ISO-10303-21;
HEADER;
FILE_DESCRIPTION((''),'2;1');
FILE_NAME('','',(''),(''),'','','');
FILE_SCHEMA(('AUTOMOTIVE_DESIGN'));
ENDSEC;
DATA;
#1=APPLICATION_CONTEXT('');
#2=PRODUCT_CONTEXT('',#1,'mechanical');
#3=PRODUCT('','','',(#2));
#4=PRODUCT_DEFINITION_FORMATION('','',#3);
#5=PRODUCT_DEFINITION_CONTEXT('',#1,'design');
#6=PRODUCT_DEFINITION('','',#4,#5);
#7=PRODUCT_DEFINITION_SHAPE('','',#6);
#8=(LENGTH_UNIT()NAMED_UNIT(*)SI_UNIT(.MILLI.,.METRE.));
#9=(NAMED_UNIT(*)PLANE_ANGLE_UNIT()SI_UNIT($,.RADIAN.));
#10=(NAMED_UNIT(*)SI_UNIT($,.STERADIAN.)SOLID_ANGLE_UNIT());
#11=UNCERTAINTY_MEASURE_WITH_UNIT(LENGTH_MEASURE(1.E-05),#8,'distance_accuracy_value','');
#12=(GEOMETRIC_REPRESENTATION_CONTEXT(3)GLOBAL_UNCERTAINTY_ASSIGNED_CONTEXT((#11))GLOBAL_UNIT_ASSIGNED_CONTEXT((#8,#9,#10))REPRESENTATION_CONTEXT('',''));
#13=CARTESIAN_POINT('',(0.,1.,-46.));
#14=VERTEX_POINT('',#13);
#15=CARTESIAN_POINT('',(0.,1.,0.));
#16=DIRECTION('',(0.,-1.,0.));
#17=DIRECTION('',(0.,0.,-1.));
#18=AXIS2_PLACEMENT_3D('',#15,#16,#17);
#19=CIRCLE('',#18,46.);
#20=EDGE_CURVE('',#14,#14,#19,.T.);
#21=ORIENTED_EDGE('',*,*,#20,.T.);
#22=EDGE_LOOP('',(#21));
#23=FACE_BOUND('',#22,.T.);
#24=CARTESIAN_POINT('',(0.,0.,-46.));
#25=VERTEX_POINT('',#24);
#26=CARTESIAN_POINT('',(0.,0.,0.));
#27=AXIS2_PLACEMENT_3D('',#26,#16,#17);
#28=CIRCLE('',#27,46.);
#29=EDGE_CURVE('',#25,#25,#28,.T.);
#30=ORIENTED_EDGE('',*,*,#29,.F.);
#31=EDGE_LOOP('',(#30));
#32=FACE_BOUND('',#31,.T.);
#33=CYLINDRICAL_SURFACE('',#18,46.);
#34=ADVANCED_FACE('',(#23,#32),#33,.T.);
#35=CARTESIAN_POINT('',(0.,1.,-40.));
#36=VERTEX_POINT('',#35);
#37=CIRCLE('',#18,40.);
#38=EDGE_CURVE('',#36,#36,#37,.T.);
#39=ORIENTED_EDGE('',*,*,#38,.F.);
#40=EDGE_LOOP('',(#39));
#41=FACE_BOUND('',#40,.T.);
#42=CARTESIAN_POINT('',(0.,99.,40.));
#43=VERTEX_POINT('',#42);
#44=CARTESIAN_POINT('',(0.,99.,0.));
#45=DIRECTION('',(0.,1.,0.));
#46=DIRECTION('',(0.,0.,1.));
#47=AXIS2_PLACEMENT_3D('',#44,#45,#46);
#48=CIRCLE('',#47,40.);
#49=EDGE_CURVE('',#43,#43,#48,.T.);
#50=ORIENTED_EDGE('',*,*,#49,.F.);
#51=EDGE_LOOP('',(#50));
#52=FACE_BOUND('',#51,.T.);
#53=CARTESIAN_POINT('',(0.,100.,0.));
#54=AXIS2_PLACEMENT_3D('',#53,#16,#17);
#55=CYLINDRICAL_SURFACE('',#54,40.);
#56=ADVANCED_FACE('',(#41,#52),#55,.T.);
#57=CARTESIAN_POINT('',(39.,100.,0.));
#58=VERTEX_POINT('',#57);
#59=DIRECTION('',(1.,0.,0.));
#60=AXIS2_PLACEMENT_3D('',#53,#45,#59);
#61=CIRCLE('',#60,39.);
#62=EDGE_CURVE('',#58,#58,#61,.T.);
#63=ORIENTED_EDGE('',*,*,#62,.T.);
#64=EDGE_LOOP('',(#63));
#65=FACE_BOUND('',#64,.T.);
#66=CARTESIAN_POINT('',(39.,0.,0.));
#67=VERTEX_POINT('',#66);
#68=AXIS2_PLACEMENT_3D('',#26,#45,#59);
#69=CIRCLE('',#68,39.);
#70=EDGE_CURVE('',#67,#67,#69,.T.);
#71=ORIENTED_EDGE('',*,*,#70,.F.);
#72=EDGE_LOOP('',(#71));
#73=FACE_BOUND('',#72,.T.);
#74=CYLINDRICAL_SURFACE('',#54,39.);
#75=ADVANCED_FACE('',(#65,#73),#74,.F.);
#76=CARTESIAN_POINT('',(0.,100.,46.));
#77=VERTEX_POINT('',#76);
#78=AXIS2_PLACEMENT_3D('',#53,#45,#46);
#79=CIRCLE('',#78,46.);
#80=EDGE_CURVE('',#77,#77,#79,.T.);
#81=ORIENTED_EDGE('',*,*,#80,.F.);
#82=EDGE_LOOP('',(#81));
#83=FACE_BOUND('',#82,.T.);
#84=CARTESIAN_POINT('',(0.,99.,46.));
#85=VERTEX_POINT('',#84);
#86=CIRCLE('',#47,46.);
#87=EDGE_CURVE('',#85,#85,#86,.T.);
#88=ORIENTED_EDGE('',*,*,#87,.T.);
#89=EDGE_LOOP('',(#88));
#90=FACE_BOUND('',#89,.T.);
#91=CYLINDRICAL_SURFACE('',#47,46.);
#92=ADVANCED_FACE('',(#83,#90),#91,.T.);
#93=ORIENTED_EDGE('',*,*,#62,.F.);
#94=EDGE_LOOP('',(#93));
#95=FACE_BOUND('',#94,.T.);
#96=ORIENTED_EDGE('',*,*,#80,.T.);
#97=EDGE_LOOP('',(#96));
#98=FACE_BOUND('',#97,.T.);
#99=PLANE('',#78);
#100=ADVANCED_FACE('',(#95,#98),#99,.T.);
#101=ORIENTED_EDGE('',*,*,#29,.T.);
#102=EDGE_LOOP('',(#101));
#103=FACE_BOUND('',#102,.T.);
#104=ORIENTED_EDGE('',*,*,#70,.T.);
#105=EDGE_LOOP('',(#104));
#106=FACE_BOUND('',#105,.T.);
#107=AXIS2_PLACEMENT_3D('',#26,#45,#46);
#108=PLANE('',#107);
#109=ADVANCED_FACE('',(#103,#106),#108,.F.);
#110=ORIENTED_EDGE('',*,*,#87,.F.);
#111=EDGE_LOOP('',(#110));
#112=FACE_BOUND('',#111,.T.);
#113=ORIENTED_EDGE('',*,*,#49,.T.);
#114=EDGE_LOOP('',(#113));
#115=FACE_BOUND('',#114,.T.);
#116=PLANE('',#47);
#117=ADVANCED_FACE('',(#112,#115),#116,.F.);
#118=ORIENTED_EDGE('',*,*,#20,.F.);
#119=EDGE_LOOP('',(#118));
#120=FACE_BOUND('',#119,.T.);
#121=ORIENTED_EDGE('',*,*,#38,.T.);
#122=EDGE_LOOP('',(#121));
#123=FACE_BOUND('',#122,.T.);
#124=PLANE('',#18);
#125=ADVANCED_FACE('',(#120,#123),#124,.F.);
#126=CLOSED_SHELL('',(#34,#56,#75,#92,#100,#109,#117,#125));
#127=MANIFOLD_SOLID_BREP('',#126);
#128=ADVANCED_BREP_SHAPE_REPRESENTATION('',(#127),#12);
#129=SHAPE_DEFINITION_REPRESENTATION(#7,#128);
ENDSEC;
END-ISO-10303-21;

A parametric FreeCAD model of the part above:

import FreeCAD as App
import Part
import Sketcher
Q = App.Units.Quantity

doc = App.newDocument("Part")
body = doc.addObject("PartDesign::Body", "Body")

# Sketch on XZ plane
sketch1 = body.newObject("Sketcher::SketchObject", "Sketch")
sketch1.AttachmentSupport = (doc.getObject("XZ_Plane"), [""])
sketch1.MapMode = "FlatFace"
sketch1.addGeometry([
    Part.Circle(App.Vector(0, 0, 0), App.Vector(0, 0, 1), 40),
    Part.Circle(App.Vector(0, 0, 0), App.Vector(0, 0, 1), 39),
], False)
sketch1.addConstraint([
    Sketcher.Constraint("Coincident", 0, 3, -1, 1),
    Sketcher.Constraint("Coincident", 1, 3, -1, 1),
    Sketcher.Constraint("Diameter", 0, Q("80 mm")),
    Sketcher.Constraint("Diameter", 1, Q("78 mm")),
])
pad1 = body.newObject("PartDesign::Pad", "Pad")
pad1.Profile = sketch1
pad1.Length = 100
pad1.Reversed = True

# Sketch on XZ plane
sketch2 = body.newObject("Sketcher::SketchObject", "Sketch001")
sketch2.AttachmentSupport = (doc.getObject("XZ_Plane"), [""])
sketch2.MapMode = "FlatFace"
sketch2.AttachmentOffset = App.Placement(App.Vector(0, 0, -99), App.Rotation())
sketch2.addGeometry([
    Part.Circle(App.Vector(0, 0, 0), App.Vector(0, 0, 1), 46),
    Part.Circle(App.Vector(0, 0, 0), App.Vector(0, 0, 1), 40),
], False)
sketch2.addConstraint([
    Sketcher.Constraint("Coincident", 0, 3, -1, 1),
    Sketcher.Constraint("Coincident", 1, 3, -1, 1),
    Sketcher.Constraint("Diameter", 0, Q("92 mm")),
    Sketcher.Constraint("Diameter", 1, Q("80 mm")),
])
pad2 = body.newObject("PartDesign::Pad", "Pad001")
pad2.Profile = sketch2
pad2.Length = 1
pad2.Reversed = True

# Sketch on XZ plane
sketch3 = body.newObject("Sketcher::SketchObject", "Sketch002")
sketch3.AttachmentSupport = (doc.getObject("XZ_Plane"), [""])
sketch3.MapMode = "FlatFace"
sketch3.addGeometry([
    Part.Circle(App.Vector(0, 0, 0), App.Vector(0, 0, 1), 46),
    Part.Circle(App.Vector(0, 0, 0), App.Vector(0, 0, 1), 40),
], False)
sketch3.addConstraint([
    Sketcher.Constraint("Coincident", 0, 3, -1, 1),
    Sketcher.Constraint("Coincident", 1, 3, -1, 1),
    Sketcher.Constraint("Diameter", 0, Q("92 mm")),
    Sketcher.Constraint("Diameter", 1, Q("80 mm")),
])
pad3 = body.newObject("PartDesign::Pad", "Pad002")
pad3.Profile = sketch3
pad3.Length = 1
pad3.Reversed = True

doc.recompute()
